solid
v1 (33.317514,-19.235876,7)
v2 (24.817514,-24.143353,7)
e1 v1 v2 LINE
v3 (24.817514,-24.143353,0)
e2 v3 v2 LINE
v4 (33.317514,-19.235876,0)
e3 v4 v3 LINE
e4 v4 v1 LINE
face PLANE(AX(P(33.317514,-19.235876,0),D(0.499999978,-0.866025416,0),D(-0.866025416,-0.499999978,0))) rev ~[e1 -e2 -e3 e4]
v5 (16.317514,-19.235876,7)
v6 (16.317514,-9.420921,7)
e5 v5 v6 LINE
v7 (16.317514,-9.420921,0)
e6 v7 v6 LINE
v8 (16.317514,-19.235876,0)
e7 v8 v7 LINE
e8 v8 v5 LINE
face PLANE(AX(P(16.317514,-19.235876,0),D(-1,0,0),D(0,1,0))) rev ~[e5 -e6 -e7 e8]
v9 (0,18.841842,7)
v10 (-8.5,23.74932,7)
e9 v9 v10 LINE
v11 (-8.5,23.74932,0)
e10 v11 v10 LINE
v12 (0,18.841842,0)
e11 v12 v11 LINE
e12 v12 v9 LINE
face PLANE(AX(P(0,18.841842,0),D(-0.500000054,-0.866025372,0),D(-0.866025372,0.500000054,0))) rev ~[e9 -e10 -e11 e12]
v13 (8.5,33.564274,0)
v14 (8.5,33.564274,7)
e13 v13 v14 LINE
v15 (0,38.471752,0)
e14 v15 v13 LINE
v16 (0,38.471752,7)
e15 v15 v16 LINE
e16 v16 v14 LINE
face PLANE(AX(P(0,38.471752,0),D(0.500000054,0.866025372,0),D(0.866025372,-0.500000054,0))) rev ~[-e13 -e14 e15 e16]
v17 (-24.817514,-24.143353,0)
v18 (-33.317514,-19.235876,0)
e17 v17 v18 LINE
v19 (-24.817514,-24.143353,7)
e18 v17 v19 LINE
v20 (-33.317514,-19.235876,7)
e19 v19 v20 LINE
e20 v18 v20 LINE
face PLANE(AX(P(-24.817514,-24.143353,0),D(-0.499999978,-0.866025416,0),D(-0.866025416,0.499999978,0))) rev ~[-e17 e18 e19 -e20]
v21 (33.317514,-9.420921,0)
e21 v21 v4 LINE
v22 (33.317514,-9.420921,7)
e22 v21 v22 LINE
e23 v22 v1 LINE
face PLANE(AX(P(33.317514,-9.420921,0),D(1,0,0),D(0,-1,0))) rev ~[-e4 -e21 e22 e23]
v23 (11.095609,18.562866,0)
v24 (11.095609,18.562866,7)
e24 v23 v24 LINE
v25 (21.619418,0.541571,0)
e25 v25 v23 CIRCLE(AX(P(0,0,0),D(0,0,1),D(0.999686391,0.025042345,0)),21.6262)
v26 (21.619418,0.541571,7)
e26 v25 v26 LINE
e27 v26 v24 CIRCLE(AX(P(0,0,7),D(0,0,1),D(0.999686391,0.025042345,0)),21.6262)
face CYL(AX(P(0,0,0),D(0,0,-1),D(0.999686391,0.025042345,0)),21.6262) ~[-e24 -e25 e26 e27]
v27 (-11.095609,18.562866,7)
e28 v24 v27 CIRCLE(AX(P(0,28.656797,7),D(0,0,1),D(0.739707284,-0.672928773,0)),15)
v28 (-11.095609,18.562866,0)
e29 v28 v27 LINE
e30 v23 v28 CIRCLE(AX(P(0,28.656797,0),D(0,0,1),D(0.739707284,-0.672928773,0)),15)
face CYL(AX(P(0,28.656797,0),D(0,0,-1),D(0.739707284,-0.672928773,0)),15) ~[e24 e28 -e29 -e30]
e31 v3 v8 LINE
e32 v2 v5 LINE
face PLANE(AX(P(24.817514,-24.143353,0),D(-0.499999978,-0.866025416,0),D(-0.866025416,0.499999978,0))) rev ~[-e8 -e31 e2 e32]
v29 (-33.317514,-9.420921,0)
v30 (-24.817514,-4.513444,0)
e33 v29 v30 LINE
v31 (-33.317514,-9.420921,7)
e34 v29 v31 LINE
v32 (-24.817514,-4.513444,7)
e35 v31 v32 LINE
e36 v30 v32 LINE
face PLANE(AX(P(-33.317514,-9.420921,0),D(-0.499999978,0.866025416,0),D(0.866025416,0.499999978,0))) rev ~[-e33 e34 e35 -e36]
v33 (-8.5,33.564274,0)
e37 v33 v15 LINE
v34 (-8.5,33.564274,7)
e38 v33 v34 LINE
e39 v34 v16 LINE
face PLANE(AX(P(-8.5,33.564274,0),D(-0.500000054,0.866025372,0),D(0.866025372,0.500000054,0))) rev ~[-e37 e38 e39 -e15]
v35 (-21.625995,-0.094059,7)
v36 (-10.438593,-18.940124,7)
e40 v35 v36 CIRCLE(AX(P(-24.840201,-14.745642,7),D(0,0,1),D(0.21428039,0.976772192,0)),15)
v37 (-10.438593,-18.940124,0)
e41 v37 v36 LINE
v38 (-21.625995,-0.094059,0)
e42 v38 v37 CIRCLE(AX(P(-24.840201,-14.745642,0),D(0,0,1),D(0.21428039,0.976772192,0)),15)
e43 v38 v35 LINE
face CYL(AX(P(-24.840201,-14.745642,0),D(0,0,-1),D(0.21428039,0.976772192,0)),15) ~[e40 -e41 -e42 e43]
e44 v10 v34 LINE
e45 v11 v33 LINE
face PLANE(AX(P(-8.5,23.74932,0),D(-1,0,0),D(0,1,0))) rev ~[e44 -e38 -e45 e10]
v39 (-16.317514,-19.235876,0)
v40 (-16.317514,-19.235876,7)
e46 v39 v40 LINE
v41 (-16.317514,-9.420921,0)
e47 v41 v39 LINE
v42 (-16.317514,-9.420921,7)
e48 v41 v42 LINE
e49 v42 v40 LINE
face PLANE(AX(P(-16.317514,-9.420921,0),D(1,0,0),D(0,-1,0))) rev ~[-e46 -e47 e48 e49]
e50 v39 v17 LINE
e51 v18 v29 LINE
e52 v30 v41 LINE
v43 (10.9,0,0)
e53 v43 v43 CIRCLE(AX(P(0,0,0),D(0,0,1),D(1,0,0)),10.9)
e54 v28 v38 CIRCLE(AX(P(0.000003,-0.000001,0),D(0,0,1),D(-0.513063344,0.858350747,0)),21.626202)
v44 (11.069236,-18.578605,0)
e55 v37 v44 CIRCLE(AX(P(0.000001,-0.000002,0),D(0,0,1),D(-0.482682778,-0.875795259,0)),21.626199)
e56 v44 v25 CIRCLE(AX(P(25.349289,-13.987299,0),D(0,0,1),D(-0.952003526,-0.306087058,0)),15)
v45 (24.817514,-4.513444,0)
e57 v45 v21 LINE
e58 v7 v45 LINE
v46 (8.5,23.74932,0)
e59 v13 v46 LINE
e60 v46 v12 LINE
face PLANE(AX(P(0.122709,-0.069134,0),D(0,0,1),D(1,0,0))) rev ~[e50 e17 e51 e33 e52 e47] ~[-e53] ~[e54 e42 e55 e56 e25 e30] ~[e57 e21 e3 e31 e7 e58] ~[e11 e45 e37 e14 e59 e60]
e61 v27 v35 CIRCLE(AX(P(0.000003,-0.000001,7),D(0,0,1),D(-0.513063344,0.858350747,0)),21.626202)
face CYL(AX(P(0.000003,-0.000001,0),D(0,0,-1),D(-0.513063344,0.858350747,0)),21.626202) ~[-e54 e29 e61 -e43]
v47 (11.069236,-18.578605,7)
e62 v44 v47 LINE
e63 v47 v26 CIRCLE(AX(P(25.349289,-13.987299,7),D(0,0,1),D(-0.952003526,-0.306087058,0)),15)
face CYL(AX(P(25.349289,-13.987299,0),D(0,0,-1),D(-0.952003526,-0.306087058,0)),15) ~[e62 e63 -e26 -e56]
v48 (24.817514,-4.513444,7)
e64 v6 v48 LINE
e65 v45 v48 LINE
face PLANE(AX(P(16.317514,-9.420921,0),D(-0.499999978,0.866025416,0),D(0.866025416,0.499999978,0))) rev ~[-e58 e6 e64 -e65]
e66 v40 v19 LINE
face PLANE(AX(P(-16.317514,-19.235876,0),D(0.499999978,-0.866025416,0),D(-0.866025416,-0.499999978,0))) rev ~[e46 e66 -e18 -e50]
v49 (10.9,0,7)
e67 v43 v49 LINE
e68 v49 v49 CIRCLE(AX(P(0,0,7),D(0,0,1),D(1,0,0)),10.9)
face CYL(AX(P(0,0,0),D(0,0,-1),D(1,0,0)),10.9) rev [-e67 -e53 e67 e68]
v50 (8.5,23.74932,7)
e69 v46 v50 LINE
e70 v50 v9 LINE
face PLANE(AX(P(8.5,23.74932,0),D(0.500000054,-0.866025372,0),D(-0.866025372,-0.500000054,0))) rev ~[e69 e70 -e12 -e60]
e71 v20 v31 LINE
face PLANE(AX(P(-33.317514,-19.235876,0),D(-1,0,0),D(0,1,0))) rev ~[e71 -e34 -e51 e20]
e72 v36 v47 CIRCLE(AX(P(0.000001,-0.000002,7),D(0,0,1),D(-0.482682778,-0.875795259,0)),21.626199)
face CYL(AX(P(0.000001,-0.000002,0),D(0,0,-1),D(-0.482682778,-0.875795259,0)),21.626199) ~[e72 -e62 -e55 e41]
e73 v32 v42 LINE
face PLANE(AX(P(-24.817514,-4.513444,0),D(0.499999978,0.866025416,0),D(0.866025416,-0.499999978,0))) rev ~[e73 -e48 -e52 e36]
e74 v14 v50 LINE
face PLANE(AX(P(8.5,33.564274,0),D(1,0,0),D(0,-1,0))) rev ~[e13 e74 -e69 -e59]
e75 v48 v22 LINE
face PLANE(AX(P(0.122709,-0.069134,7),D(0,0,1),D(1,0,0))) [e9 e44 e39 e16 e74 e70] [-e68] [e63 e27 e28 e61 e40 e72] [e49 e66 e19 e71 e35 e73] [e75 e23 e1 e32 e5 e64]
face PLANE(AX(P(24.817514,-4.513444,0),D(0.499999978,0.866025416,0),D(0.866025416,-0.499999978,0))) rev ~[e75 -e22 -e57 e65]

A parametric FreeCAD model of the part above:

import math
import FreeCAD as App
import Part
import Sketcher
from FreeCAD import Vector
Q = App.Units.Quantity


def add_polygon(sketch, points):
    """Adds a closed chain of lines whose ends are joined by coincident constraints."""
    first, n = sketch.GeometryCount, len(points)
    for a, b in zip(points, points[1:] + points[:1]):
        sketch.addGeometry(Part.LineSegment(App.Vector(*a, 0), App.Vector(*b, 0)), False)
    for i in range(n):
        sketch.addConstraint(Sketcher.Constraint("Coincident", first + i, 2, first + (i + 1) % n, 1))

doc = App.newDocument("Part")
body = doc.addObject("PartDesign::Body", "Body")

sketch1 = body.newObject("Sketcher::SketchObject", "Sketch")
sketch1.AttachmentSupport = (doc.getObject("XY_Plane"), [""])
sketch1.MapMode = "FlatFace"
sketch1.addGeometry(Part.ArcOfCircle(Part.Circle(Vector(0, 0, 0), Vector(0, 0, 1), 21.6262), math.radians(1.434971), math.radians(59.131912)), False)
sketch1.addGeometry(Part.ArcOfCircle(Part.Circle(Vector(0, 28.656797, 0), Vector(0, 0, 1), 15), math.radians(-42.293513), math.radians(222.293513)), False)
sketch1.addGeometry(Part.ArcOfCircle(Part.Circle(Vector(0.000003, -0.000001, 0), Vector(0, 0, 1), 21.626202), math.radians(120.868094), math.radians(180.249196)), False)
sketch1.addGeometry(Part.ArcOfCircle(Part.Circle(Vector(-24.840201, -14.745642, 0), Vector(0, 0, 1), 15), math.radians(77.626687), math.radians(343.761747)), False)
sketch1.addGeometry(Part.ArcOfCircle(Part.Circle(Vector(0.000001, -0.000002, 0), Vector(0, 0, 1), 21.626199), math.radians(-118.860766), math.radians(-59.213279)), False)
sketch1.addGeometry(Part.ArcOfCircle(Part.Circle(Vector(25.349289, -13.987299, 0), Vector(0, 0, 1), 15), math.radians(-162.176424), math.radians(104.398118)), False)
add_polygon(sketch1, [(-16.317514, -9.420921), (-16.317514, -19.235876), (-24.817514, -24.143353), (-33.317514, -19.235876), (-33.317514, -9.420921), (-24.817514, -4.513444)])
add_polygon(sketch1, [(16.317514, -9.420921), (24.817514, -4.513444), (33.317514, -9.420921), (33.317514, -19.235876), (24.817514, -24.143353), (16.317514, -19.235876)])
sketch1.addGeometry(Part.Circle(Vector(0, 0, 0), Vector(0, 0, 1), 10.9), False)
add_polygon(sketch1, [(-8.5, 33.564274), (0, 38.471752), (8.5, 33.564274), (8.5, 23.74932), (0, 18.841842), (-8.5, 23.74932)])
sketch1.addConstraint(Sketcher.Constraint("Coincident", 0, 2, 1, 1))
sketch1.addConstraint(Sketcher.Constraint("Coincident", 1, 2, 2, 1))
sketch1.addConstraint(Sketcher.Constraint("Coincident", 2, 2, 3, 1))
sketch1.addConstraint(Sketcher.Constraint("Coincident", 3, 2, 4, 1))
sketch1.addConstraint(Sketcher.Constraint("Coincident", 4, 2, 5, 1))
sketch1.addConstraint(Sketcher.Constraint("Coincident", 5, 2, 0, 1))
sketch1.addConstraint(Sketcher.Constraint("Vertical", 6))
sketch1.addConstraint(Sketcher.Constraint("Vertical", 9))
sketch1.addConstraint(Sketcher.Constraint("Vertical", 14))
sketch1.addConstraint(Sketcher.Constraint("Vertical", 17))
sketch1.addConstraint(Sketcher.Constraint("Vertical", 21))
sketch1.addConstraint(Sketcher.Constraint("Vertical", 24))
sketch1.addConstraint(Sketcher.Constraint("Coincident", 0, 3, -1, 1))
sketch1.addConstraint(Sketcher.Constraint("Coincident", 2, 3, -1, 1))
sketch1.addConstraint(Sketcher.Constraint("Coincident", 4, 3, -1, 1))
sketch1.addConstraint(Sketcher.Constraint("Coincident", 18, 3, -1, 1))
sketch1.addConstraint(Sketcher.Constraint("Equal", 1, 3))
sketch1.addConstraint(Sketcher.Constraint("Equal", 0, 4))
sketch1.addConstraint(Sketcher.Constraint("Equal", 3, 5))
sketch1.addConstraint(Sketcher.Constraint("Symmetric", 0, 2, 1, 2, -2))
sketch1.addConstraint(Sketcher.Constraint("Symmetric", 10, 2, 12, 2, -2))
sketch1.addConstraint(Sketcher.Constraint("Symmetric", 9, 2, 13, 2, -2))
sketch1.addConstraint(Sketcher.Constraint("Symmetric", 7, 2, 15, 2, -2))
sketch1.addConstraint(Sketcher.Constraint("Symmetric", 6, 2, 16, 2, -2))
sketch1.addConstraint(Sketcher.Constraint("Symmetric", 21, 2, 23, 2, -2))
sketch1.addConstraint(Sketcher.Constraint("PointOnObject", 19, 2, -2))
sketch1.addConstraint(Sketcher.Constraint("PointOnObject", 22, 2, -2))
sketch1.addConstraint(Sketcher.Constraint("Parallel", 7, 10))
sketch1.addConstraint(Sketcher.Constraint("Parallel", 8, 11))
sketch1.addConstraint(Sketcher.Constraint("Parallel", 10, 12))
sketch1.addConstraint(Sketcher.Constraint("Parallel", 11, 13))
sketch1.addConstraint(Sketcher.Constraint("Parallel", 12, 15))
sketch1.addConstraint(Sketcher.Constraint("Parallel", 15, 19))
sketch1.addConstraint(Sketcher.Constraint("Parallel", 16, 20))
sketch1.addConstraint(Sketcher.Constraint("Parallel", 19, 22))
sketch1.addConstraint(Sketcher.Constraint("Horizontal", 6, 2, 8, 2))
sketch1.addConstraint(Sketcher.Constraint("Horizontal", 9, 2, 11, 2))
sketch1.addConstraint(Sketcher.Constraint("Equal", 17, 21))
sketch1.addConstraint(Sketcher.Constraint("Equal", 16, 19))
sketch1.addConstraint(Sketcher.Constraint("Radius", 1, Q("15 mm")))
sketch1.addConstraint(Sketcher.Constraint("Diameter", 18, Q("21.8 mm")))
sketch1.addConstraint(Sketcher.Constraint("Angle", 7, Q("-150.000001 deg")))
sketch1.addConstraint(Sketcher.Constraint("DistanceX", 8, 2, 6, 2, Q("17 mm")))
sketch1.addConstraint(Sketcher.Constraint("Radius", 0, Q("21.6262 mm")))
sketch1.addConstraint(Sketcher.Constraint("DistanceX", 3, 3, -1, 1, Q("24.840201 mm")))
sketch1.addConstraint(Sketcher.Constraint("DistanceY", 5, 3, -1, 1, Q("13.987299 mm")))
sketch1.addConstraint(Sketcher.Constraint("DistanceY", 2, 3, 1, 3, Q("28.656798 mm")))
sketch1.addConstraint(Sketcher.Constraint("DistanceY", 6, 2, 6, 1, Q("9.814955 mm")))
sketch1.addConstraint(Sketcher.Constraint("DistanceY", 3, 3, -1, 1, Q("14.745642 mm")))
sketch1.addConstraint(Sketcher.Constraint("DistanceX", -1, 1, 5, 3, Q("25.349289 mm")))
sketch1.addConstraint(Sketcher.Constraint("DistanceY", 9, 2, -1, 1, Q("9.420921 mm")))
sketch1.addConstraint(Sketcher.Constraint("DistanceY", -1, 1, 21, 2, Q("23.74932 mm")))
sketch1.addConstraint(Sketcher.Constraint("DistanceX", 6, 2, 3, 2, Q("5.878921 mm")))
pad1 = body.newObject("PartDesign::Pad", "Pad")
pad1.Profile = sketch1
pad1.Length = 7

doc.recompute()
